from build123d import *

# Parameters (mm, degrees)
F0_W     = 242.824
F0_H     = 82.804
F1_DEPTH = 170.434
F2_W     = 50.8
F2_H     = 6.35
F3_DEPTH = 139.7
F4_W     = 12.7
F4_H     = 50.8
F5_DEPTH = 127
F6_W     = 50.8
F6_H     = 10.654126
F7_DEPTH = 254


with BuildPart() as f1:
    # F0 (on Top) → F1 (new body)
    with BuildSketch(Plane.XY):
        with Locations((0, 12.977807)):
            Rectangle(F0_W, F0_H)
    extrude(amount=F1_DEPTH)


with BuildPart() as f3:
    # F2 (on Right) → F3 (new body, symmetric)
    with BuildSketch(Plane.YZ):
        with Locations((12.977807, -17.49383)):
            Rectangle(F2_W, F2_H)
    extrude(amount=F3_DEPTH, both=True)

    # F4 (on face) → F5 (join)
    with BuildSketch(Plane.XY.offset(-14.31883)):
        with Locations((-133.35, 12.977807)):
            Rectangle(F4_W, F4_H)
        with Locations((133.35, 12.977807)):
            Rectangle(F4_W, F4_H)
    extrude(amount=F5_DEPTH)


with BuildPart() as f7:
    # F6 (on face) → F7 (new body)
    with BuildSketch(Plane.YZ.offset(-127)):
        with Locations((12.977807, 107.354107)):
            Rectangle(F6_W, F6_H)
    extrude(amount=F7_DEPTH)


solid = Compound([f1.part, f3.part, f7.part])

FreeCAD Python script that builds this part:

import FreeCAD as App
import Part
import Sketcher
Q = App.Units.Quantity

doc = App.newDocument("Part")
body = doc.addObject("PartDesign::Body", "Body")

sketch1 = body.newObject("Sketcher::SketchObject", "Sketch")
sketch1.AttachmentSupport = (doc.getObject("XY_Plane"), [""])
sketch1.MapMode = "FlatFace"
sketch1.addGeometry([
    Part.LineSegment(App.Vector(-121.412, 54.379807, 0), App.Vector(-121.412, -28.424193, 0)),
    Part.LineSegment(App.Vector(-121.412, -28.424193, 0), App.Vector(121.412, -28.424193, 0)),
    Part.LineSegment(App.Vector(121.412, -28.424193, 0), App.Vector(121.412, 54.379807, 0)),
    Part.LineSegment(App.Vector(121.412, 54.379807, 0), App.Vector(-121.412, 54.379807, 0)),
], False)
sketch1.addConstraint([
    Sketcher.Constraint("Coincident", 0, 2, 1, 1),
    Sketcher.Constraint("Coincident", 1, 2, 2, 1),
    Sketcher.Constraint("Coincident", 2, 2, 3, 1),
    Sketcher.Constraint("Coincident", 3, 2, 0, 1),
    Sketcher.Constraint("Vertical", 0),
    Sketcher.Constraint("Horizontal", 1),
    Sketcher.Constraint("Vertical", 2),
    Sketcher.Constraint("Horizontal", 3),
    Sketcher.Constraint("DistanceX", 1, 1, 1, 2, Q("9.56 in")),
    Sketcher.Constraint("DistanceY", 0, 2, 0, 1, Q("3.26 in")),
    Sketcher.Constraint("DistanceX", 0, 2, -1, 1, Q("4.78 in")),
    Sketcher.Constraint("DistanceY", 0, 2, -1, 1, 28.424193),
])
pad1 = body.newObject("PartDesign::Pad", "Pad")
pad1.Profile = sketch1
pad1.Length = Q("6.71 in")
body2 = doc.addObject("PartDesign::Body", "Body001")

sketch2 = body2.newObject("Sketcher::SketchObject", "Sketch001")
sketch2.AttachmentSupport = (doc.getObject("YZ_Plane001"), [""])
sketch2.MapMode = "FlatFace"
sketch2.addGeometry([
    Part.LineSegment(App.Vector(-12.422193, -14.31883, 0), App.Vector(-12.422193, -20.66883, 0)),
    Part.LineSegment(App.Vector(-12.422193, -20.66883, 0), App.Vector(38.377807, -20.66883, 0)),
    Part.LineSegment(App.Vector(38.377807, -20.66883, 0), App.Vector(38.377807, -14.31883, 0)),
    Part.LineSegment(App.Vector(38.377807, -14.31883, 0), App.Vector(-12.422193, -14.31883, 0)),
], False)
sketch2.addConstraint([
    Sketcher.Constraint("Coincident", 0, 2, 1, 1),
    Sketcher.Constraint("Coincident", 1, 2, 2, 1),
    Sketcher.Constraint("Coincident", 2, 2, 3, 1),
    Sketcher.Constraint("Coincident", 3, 2, 0, 1),
    Sketcher.Constraint("Vertical", 0),
    Sketcher.Constraint("Horizontal", 1),
    Sketcher.Constraint("Vertical", 2),
    Sketcher.Constraint("Horizontal", 3),
    Sketcher.Constraint("DistanceX", 1, 1, 1, 2, Q("2 in")),
    Sketcher.Constraint("DistanceY", 0, 2, 0, 1, Q("0.25 in")),
    Sketcher.Constraint("DistanceY", 0, 2, -1, 1, 20.66883),
    Sketcher.Constraint("DistanceX", 0, 2, -1, 1, 12.422193),
])
pad2 = body2.newObject("PartDesign::Pad", "Pad001")
pad2.Profile = sketch2
pad2.Length = Q("11 in")
pad2.Midplane = True

sketch3 = body2.newObject("Sketcher::SketchObject", "Sketch002")
sketch3.AttachmentSupport = (doc.getObject("XY_Plane001"), [""])
sketch3.MapMode = "FlatFace"
sketch3.AttachmentOffset = App.Placement(App.Vector(0, 0, -14.31883), App.Rotation())
sketch3.addGeometry([
    Part.LineSegment(App.Vector(-139.7, 38.377807, 0), App.Vector(-139.7, -12.422193, 0)),
    Part.LineSegment(App.Vector(-139.7, -12.422193, 0), App.Vector(-127, -12.422193, 0)),
    Part.LineSegment(App.Vector(-127, -12.422193, 0), App.Vector(-127, 38.377807, 0)),
    Part.LineSegment(App.Vector(-127, 38.377807, 0), App.Vector(-139.7, 38.377807, 0)),
    Part.LineSegment(App.Vector(127, 38.377807, 0), App.Vector(127, -12.422193, 0)),
    Part.LineSegment(App.Vector(127, -12.422193, 0), App.Vector(139.7, -12.422193, 0)),
    Part.LineSegment(App.Vector(139.7, -12.422193, 0), App.Vector(139.7, 38.377807, 0)),
    Part.LineSegment(App.Vector(139.7, 38.377807, 0), App.Vector(127, 38.377807, 0)),
], False)
sketch3.addConstraint([
    Sketcher.Constraint("Coincident", 0, 2, 1, 1),
    Sketcher.Constraint("Coincident", 1, 2, 2, 1),
    Sketcher.Constraint("Coincident", 2, 2, 3, 1),
    Sketcher.Constraint("Coincident", 3, 2, 0, 1),
    Sketcher.Constraint("Coincident", 4, 2, 5, 1),
    Sketcher.Constraint("Coincident", 5, 2, 6, 1),
    Sketcher.Constraint("Coincident", 6, 2, 7, 1),
    Sketcher.Constraint("Coincident", 7, 2, 4, 1),
    Sketcher.Constraint("Vertical", 0),
    Sketcher.Constraint("Horizontal", 1),
    Sketcher.Constraint("Vertical", 2),
    Sketcher.Constraint("Horizontal", 3),
    Sketcher.Constraint("Vertical", 4),
    Sketcher.Constraint("Horizontal", 5),
    Sketcher.Constraint("Vertical", 6),
    Sketcher.Constraint("Horizontal", 7),
    Sketcher.Constraint("Symmetric", 1, 2, 4, 2, -2),
    Sketcher.Constraint("Symmetric", 3, 2, 6, 2, -2),
    Sketcher.Constraint("DistanceY", 0, 2, 0, 1, Q("2 in")),
    Sketcher.Constraint("DistanceX", 1, 1, 1, 2, Q("0.5 in")),
    Sketcher.Constraint("DistanceX", 1, 2, -1, 1, Q("5 in")),
    Sketcher.Constraint("DistanceY", 0, 2, -1, 1, 12.422193),
])
pad3 = body2.newObject("PartDesign::Pad", "Pad002")
pad3.Profile = sketch3
pad3.Length = Q("5 in")
body3 = doc.addObject("PartDesign::Body", "Body002")

sketch4 = body3.newObject("Sketcher::SketchObject", "Sketch003")
sketch4.AttachmentSupport = (doc.getObject("YZ_Plane002"), [""])
sketch4.MapMode = "FlatFace"
sketch4.AttachmentOffset = App.Placement(App.Vector(0, 0, -5 * 25.4), App.Rotation())
sketch4.addGeometry([
    Part.LineSegment(App.Vector(-12.422193, 112.68117, 0), App.Vector(-12.422193, 102.027044, 0)),
    Part.LineSegment(App.Vector(-12.422193, 102.027044, 0), App.Vector(38.377807, 102.027044, 0)),
    Part.LineSegment(App.Vector(38.377807, 102.027044, 0), App.Vector(38.377807, 112.68117, 0)),
    Part.LineSegment(App.Vector(38.377807, 112.68117, 0), App.Vector(-12.422193, 112.68117, 0)),
], False)
sketch4.addConstraint([
    Sketcher.Constraint("Coincident", 0, 2, 1, 1),
    Sketcher.Constraint("Coincident", 1, 2, 2, 1),
    Sketcher.Constraint("Coincident", 2, 2, 3, 1),
    Sketcher.Constraint("Coincident", 3, 2, 0, 1),
    Sketcher.Constraint("Vertical", 0),
    Sketcher.Constraint("Horizontal", 1),
    Sketcher.Constraint("Vertical", 2),
    Sketcher.Constraint("Horizontal", 3),
    Sketcher.Constraint("DistanceX", 1, 1, 1, 2, Q("2 in")),
    Sketcher.Constraint("DistanceY", 0, 2, 0, 1, 10.654126),
    Sketcher.Constraint("DistanceY", -1, 1, 2, 2, 112.68117),
    Sketcher.Constraint("DistanceX", 0, 2, -1, 1, 12.422193),
])
pad4 = body3.newObject("PartDesign::Pad", "Pad003")
pad4.Profile = sketch4
pad4.Length = Q("10 in")

doc.recompute()
